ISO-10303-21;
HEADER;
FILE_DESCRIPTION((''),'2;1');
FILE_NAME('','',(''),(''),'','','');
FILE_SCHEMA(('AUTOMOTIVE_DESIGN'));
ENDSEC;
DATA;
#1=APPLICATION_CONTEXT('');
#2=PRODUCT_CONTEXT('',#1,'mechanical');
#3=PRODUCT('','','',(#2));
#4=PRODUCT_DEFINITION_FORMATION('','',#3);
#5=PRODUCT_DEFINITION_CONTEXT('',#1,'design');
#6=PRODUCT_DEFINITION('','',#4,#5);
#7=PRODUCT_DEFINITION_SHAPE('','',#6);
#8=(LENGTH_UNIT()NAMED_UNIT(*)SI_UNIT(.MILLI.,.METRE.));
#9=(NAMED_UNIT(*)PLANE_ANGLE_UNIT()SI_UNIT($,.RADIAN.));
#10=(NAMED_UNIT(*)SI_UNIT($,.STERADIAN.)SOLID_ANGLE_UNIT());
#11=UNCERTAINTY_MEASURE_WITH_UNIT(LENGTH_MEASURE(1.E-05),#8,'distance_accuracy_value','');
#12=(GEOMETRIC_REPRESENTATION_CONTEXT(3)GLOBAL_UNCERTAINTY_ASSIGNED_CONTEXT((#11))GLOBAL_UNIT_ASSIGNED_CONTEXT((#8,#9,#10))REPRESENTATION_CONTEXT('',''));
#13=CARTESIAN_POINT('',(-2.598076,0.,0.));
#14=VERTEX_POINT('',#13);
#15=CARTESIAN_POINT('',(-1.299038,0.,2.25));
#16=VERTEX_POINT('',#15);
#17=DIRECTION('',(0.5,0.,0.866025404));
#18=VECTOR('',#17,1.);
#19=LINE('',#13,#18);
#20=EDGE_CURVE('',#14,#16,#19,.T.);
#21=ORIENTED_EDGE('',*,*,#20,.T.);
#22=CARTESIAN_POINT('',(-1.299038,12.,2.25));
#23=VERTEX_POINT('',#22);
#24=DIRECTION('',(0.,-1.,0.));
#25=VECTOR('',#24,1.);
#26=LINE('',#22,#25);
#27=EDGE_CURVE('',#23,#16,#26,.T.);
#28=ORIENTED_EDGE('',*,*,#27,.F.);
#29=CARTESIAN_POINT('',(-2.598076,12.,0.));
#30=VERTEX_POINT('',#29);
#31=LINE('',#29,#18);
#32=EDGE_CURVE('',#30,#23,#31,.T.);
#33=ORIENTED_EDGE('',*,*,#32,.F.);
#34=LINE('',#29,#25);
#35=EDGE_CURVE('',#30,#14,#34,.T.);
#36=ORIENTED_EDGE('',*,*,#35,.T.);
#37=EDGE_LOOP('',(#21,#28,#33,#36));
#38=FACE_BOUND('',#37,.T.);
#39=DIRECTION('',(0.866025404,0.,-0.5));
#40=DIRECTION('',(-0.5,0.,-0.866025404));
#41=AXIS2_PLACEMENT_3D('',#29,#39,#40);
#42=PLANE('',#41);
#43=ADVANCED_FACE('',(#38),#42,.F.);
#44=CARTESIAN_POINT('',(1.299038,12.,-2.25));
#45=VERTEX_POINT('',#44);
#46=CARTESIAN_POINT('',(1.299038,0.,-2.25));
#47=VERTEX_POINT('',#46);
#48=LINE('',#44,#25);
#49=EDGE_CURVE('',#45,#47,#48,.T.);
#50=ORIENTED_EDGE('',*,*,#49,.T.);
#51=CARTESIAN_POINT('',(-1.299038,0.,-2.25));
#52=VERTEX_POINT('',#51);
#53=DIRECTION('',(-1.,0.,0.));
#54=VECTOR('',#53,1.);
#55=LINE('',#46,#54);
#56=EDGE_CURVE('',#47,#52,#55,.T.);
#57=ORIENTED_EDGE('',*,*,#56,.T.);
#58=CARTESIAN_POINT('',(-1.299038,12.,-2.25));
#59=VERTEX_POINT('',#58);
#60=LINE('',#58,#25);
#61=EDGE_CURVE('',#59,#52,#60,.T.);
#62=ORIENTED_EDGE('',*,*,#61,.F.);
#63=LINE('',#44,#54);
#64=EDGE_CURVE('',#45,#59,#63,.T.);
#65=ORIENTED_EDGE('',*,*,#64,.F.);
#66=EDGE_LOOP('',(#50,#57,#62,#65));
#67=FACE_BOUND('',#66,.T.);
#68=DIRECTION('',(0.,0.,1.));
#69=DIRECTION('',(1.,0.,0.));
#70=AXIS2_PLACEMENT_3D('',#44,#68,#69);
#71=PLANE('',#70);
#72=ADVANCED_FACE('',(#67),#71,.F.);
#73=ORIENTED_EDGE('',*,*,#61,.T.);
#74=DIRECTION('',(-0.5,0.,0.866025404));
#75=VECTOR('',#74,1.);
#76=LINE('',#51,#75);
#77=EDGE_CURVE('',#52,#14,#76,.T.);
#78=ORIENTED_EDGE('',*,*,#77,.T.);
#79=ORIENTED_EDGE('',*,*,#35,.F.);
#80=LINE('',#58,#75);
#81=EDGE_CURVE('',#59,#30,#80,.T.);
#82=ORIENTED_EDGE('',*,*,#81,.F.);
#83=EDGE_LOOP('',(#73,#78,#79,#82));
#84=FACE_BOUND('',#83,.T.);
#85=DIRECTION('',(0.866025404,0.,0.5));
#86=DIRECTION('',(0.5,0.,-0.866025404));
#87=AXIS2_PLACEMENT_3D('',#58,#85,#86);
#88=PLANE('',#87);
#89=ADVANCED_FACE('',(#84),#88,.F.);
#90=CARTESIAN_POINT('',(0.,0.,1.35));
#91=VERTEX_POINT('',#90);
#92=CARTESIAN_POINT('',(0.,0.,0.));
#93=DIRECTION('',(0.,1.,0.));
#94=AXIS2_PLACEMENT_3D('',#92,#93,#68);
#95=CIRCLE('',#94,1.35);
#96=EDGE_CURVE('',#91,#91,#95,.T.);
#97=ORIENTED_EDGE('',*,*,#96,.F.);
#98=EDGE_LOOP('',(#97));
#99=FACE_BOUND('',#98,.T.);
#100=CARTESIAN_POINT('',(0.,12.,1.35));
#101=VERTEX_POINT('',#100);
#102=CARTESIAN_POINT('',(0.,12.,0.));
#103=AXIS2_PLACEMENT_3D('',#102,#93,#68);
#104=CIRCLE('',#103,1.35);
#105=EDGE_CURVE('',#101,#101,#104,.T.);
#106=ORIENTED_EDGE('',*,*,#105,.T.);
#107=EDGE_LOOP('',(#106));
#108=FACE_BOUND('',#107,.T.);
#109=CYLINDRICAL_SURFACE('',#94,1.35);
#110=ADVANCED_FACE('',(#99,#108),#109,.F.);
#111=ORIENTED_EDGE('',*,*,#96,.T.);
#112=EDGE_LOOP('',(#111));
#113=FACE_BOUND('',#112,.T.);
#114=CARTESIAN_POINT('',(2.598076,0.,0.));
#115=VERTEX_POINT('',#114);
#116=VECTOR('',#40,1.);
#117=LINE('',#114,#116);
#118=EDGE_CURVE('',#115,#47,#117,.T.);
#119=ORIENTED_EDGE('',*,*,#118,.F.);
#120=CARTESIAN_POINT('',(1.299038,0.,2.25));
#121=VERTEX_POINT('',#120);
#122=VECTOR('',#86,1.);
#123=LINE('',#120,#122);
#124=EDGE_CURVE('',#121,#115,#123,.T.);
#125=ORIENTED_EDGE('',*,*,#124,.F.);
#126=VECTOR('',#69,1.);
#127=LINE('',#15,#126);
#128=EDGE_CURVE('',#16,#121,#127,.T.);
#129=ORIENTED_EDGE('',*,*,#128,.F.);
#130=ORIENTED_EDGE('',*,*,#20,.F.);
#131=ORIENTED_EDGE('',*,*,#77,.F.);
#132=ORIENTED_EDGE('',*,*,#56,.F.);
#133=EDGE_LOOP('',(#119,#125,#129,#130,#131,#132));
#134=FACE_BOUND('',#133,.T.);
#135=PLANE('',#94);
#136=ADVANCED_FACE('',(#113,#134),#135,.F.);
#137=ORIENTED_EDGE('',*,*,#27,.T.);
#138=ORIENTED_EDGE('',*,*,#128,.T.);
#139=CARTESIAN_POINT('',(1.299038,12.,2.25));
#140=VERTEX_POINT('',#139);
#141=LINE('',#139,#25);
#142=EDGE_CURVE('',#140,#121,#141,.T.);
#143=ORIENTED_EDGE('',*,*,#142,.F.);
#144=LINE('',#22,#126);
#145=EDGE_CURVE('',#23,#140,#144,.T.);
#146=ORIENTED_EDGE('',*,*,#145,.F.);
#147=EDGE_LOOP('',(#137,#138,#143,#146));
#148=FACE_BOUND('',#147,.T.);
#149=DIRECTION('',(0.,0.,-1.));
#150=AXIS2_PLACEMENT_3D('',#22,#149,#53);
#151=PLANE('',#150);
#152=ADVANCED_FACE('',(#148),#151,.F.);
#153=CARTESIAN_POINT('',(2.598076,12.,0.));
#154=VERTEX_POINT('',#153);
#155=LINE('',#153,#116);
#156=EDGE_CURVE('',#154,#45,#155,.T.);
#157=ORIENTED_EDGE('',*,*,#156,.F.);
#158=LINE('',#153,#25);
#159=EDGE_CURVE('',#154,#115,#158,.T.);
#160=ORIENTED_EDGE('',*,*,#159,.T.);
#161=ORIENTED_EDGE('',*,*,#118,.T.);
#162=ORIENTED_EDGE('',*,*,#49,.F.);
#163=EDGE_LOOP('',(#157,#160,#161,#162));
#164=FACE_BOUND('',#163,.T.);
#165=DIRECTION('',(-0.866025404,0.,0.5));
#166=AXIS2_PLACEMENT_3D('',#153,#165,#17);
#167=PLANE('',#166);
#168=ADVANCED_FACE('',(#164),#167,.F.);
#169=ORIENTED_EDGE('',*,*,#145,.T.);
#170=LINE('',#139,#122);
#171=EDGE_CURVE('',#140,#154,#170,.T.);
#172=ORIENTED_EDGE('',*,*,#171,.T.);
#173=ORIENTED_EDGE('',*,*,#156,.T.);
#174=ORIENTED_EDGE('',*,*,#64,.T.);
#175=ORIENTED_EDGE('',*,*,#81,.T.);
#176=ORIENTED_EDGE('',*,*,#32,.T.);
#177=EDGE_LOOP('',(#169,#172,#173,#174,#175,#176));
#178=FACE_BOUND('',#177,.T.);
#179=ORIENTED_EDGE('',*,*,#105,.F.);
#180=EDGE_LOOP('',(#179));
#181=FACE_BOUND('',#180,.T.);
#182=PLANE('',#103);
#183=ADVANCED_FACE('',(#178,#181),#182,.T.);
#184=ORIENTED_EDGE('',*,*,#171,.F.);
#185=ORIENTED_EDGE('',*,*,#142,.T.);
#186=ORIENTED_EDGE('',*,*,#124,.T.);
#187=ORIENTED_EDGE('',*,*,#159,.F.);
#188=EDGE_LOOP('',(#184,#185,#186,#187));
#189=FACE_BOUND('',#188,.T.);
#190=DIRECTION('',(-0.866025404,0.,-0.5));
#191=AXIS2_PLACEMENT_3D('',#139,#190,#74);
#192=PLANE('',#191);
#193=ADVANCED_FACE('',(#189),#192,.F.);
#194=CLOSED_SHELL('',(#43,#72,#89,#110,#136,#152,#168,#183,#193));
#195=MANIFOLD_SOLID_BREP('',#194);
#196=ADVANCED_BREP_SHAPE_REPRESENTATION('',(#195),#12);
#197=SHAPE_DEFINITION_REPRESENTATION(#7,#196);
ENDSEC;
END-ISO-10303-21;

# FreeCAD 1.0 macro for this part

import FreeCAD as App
import Part
import Sketcher
Q = App.Units.Quantity

doc = App.newDocument("Part")
params = doc.addObject("Spreadsheet::Sheet", "Params")
for row, (alias, value) in enumerate([
    ("pad1_length", "12 mm"),
    ("sketch2_diameter", "2.7 mm"),
], start=1):
    params.set(f"A{row}", alias)
    params.set(f"B{row}", "=" + value)
    params.setAlias(f"B{row}", alias)

body = doc.addObject("PartDesign::Body", "Body")

sketch1 = body.newObject("Sketcher::SketchObject", "Sketch")
sketch1.AttachmentSupport = (doc.getObject("XZ_Plane"), [""])
sketch1.MapMode = "FlatFace"
sketch1.addGeometry([
    Part.LineSegment(App.Vector(-1.299038, 2.25, 0), App.Vector(1.299038, 2.25, 0)),
    Part.LineSegment(App.Vector(1.299038, 2.25, 0), App.Vector(2.598076, 0, 0)),
    Part.LineSegment(App.Vector(2.598076, 0, 0), App.Vector(1.299038, -2.25, 0)),
    Part.LineSegment(App.Vector(1.299038, -2.25, 0), App.Vector(-1.299038, -2.25, 0)),
    Part.LineSegment(App.Vector(-1.299038, -2.25, 0), App.Vector(-2.598076, 0, 0)),
    Part.LineSegment(App.Vector(-2.598076, 0, 0), App.Vector(-1.299038, 2.25, 0)),
], False)
sketch1.addConstraint([
    Sketcher.Constraint("Coincident", 0, 2, 1, 1),
    Sketcher.Constraint("Coincident", 1, 2, 2, 1),
    Sketcher.Constraint("Coincident", 2, 2, 3, 1),
    Sketcher.Constraint("Coincident", 3, 2, 4, 1),
    Sketcher.Constraint("Coincident", 4, 2, 5, 1),
    Sketcher.Constraint("Coincident", 5, 2, 0, 1),
    Sketcher.Constraint("Horizontal", 0),
    Sketcher.Constraint("Horizontal", 3),
    Sketcher.Constraint("Symmetric", 0, 2, 3, 2, -1, 1),
    Sketcher.Constraint("Symmetric", 1, 2, 4, 2, -1, 1),
    Sketcher.Constraint("PointOnObject", 1, 2, -1),
    Sketcher.Constraint("Parallel", 2, 5),
    Sketcher.Constraint("Vertical", 0, 2, 2, 2),
    Sketcher.Constraint("Angle", 1, Q("-60 deg")),
    Sketcher.Constraint("DistanceY", 2, 2, 0, 2, Q("4.5 mm")),
    Sketcher.Constraint("DistanceX", 0, 1, 0, 2, Q("2.598076 mm")),
])
pad1 = body.newObject("PartDesign::Pad", "Pad")
pad1.Profile = sketch1
pad1.setExpression("Length", "Params.pad1_length")
pad1.Reversed = True

sketch2 = body.newObject("Sketcher::SketchObject", "Sketch001")
sketch2.AttachmentSupport = (doc.getObject("XZ_Plane"), [""])
sketch2.MapMode = "FlatFace"
sketch2.AttachmentOffset = App.Placement(App.Vector(0, 0, -12), App.Rotation())
sketch2.addGeometry(Part.Circle(App.Vector(0, 0, 0), App.Vector(0, 0, 1), 1.35), False)
sketch2.addConstraint([
    Sketcher.Constraint("Coincident", 0, 3, -1, 1),
    Sketcher.Constraint("Diameter", 0, Q("2.7 mm")),
])
sketch2.setExpression("Constraints[1]", "Params.sketch2_diameter")
pocket1 = body.newObject("PartDesign::Pocket", "Pocket")
pocket1.Profile = sketch2
pocket1.Type = "ThroughAll"
pocket1.Reversed = True

doc.recompute()
